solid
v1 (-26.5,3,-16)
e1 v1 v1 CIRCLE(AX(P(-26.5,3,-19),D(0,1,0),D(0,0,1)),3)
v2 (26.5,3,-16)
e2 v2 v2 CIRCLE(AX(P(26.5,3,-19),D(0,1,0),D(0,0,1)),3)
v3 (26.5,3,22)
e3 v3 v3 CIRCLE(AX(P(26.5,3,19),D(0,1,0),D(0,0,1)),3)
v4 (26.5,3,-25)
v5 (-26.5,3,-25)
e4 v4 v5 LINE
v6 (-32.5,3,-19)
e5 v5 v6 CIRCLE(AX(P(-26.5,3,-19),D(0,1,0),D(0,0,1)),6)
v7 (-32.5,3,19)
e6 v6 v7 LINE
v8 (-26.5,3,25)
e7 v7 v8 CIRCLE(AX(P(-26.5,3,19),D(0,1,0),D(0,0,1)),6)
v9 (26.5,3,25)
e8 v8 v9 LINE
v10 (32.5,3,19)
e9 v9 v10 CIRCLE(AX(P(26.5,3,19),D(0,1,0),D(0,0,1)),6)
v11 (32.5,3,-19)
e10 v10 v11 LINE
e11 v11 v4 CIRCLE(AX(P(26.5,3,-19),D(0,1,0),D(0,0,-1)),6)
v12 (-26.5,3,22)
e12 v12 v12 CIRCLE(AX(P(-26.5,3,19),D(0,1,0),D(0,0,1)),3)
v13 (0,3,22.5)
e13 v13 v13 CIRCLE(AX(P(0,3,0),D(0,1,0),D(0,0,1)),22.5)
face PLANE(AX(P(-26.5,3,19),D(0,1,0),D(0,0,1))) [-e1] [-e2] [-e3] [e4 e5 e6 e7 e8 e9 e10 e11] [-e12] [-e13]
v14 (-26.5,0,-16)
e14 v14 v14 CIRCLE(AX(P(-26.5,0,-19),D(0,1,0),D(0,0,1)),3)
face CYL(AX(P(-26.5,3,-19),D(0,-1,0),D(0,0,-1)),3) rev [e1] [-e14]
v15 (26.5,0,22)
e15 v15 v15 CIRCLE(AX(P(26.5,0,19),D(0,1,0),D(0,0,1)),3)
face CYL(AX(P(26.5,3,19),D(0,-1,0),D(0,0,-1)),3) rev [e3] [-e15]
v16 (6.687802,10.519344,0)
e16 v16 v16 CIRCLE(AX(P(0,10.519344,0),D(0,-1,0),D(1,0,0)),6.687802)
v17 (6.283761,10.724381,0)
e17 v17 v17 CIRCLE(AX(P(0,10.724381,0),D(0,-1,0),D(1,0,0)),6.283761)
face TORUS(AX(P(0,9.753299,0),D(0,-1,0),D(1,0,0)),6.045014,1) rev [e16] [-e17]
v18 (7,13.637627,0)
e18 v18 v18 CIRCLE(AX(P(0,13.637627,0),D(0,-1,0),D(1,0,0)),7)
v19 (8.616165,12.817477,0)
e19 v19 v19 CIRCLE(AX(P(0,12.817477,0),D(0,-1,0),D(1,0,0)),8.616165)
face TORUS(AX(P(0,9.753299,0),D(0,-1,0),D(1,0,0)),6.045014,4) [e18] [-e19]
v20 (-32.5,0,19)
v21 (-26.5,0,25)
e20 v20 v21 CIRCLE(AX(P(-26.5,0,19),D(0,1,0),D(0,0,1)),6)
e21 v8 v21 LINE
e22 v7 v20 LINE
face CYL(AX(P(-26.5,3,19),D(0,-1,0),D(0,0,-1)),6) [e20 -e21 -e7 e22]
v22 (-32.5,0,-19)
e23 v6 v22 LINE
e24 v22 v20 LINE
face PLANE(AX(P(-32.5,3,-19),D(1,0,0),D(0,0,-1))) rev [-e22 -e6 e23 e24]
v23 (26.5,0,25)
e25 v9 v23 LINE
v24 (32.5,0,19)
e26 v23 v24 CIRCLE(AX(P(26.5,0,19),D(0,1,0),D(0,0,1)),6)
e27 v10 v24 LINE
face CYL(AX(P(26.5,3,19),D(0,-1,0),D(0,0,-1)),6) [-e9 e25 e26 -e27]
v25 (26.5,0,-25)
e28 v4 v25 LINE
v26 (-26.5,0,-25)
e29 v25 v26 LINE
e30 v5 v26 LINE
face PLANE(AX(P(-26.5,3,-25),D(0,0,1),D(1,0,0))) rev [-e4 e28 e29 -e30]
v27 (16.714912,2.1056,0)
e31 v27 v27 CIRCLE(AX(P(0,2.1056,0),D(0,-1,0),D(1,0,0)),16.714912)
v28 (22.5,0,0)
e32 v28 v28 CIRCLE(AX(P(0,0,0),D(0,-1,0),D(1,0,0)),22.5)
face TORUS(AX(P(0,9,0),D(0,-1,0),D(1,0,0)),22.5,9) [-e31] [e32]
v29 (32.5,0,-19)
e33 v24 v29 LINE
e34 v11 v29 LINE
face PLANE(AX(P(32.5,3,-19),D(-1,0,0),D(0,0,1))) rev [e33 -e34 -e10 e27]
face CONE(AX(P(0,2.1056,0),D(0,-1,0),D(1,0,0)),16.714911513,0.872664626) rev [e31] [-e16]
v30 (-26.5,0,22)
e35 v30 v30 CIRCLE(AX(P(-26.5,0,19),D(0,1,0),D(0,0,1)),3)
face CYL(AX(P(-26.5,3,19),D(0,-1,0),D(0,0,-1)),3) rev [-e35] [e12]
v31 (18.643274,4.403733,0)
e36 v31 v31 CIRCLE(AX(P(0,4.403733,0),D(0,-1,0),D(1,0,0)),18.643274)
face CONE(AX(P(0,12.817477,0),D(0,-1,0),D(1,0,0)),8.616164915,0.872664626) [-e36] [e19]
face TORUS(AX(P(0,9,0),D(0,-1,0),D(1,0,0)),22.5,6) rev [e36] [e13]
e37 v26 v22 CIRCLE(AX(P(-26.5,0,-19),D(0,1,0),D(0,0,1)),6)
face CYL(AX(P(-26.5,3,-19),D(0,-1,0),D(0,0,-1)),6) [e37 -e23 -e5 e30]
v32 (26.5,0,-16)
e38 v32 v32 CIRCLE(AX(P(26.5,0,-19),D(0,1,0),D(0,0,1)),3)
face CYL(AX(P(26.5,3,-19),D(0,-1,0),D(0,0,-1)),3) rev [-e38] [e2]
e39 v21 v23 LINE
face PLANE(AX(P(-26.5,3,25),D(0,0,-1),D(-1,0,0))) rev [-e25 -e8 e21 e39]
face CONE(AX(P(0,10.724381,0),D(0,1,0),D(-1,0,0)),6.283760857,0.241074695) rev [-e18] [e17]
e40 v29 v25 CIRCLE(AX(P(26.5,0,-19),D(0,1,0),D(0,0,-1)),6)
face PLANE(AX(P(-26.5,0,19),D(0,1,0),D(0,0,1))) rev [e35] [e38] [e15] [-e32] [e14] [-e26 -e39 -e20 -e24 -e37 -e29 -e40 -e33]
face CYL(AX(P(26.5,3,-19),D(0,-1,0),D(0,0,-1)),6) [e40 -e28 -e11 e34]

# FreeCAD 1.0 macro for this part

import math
import FreeCAD as App
import Part
import Sketcher

V = App.Vector
Q = App.Units.Quantity

doc = App.newDocument("Part")
body = doc.addObject("PartDesign::Body", "Body")

sketch1 = doc.addObject("Sketcher::SketchObject", "Sketch")
body.addObject(sketch1)
sketch1.AttachmentSupport = (doc.XZ_Plane, [""])
sketch1.MapMode = "FlatFace"
sketch1.addGeometry(Part.LineSegment(V(26.5, -25, 0), V(-26.5, -25, 0)), False)
sketch1.addGeometry(Part.ArcOfCircle(Part.Circle(V(-26.5, -19, 0), V(0, 0, 1), 6), math.radians(180), math.radians(270)), False)
sketch1.addGeometry(Part.LineSegment(V(-32.5, -19, 0), V(-32.5, 19, 0)), False)
sketch1.addGeometry(Part.ArcOfCircle(Part.Circle(V(-26.5, 19, 0), V(0, 0, 1), 6), math.radians(90), math.radians(180)), False)
sketch1.addGeometry(Part.LineSegment(V(-26.5, 25, 0), V(26.5, 25, 0)), False)
sketch1.addGeometry(Part.ArcOfCircle(Part.Circle(V(26.5, 19, 0), V(0, 0, 1), 6), math.radians(0), math.radians(90)), False)
sketch1.addGeometry(Part.LineSegment(V(32.5, 19, 0), V(32.5, -19, 0)), False)
sketch1.addGeometry(Part.ArcOfCircle(Part.Circle(V(26.5, -19, 0), V(0, 0, 1), 6), math.radians(-90), math.radians(0)), False)
sketch1.addGeometry(Part.Circle(V(26.5, 19, 0), V(0, 0, 1), 3), False)
sketch1.addGeometry(Part.Circle(V(-26.5, 19, 0), V(0, 0, 1), 3), False)
sketch1.addGeometry(Part.Circle(V(26.5, -19, 0), V(0, 0, 1), 3), False)
sketch1.addGeometry(Part.Circle(V(0, 0, 0), V(0, 0, 1), 22.5), False)
sketch1.addGeometry(Part.Circle(V(-26.5, -19, 0), V(0, 0, 1), 3), False)
sketch1.addConstraint(Sketcher.Constraint("Tangent", 0, 2, 1, 2))
sketch1.addConstraint(Sketcher.Constraint("Tangent", 1, 1, 2, 1))
sketch1.addConstraint(Sketcher.Constraint("Tangent", 2, 2, 3, 2))
sketch1.addConstraint(Sketcher.Constraint("Tangent", 3, 1, 4, 1))
sketch1.addConstraint(Sketcher.Constraint("Tangent", 4, 2, 5, 2))
sketch1.addConstraint(Sketcher.Constraint("Tangent", 5, 1, 6, 1))
sketch1.addConstraint(Sketcher.Constraint("Tangent", 6, 2, 7, 2))
sketch1.addConstraint(Sketcher.Constraint("Tangent", 7, 1, 0, 1))
sketch1.addConstraint(Sketcher.Constraint("Horizontal", 0))
sketch1.addConstraint(Sketcher.Constraint("Vertical", 2))
sketch1.addConstraint(Sketcher.Constraint("Horizontal", 4))
sketch1.addConstraint(Sketcher.Constraint("Vertical", 6))
sketch1.addConstraint(Sketcher.Constraint("Coincident", 11, 3, -1, 1))
sketch1.addConstraint(Sketcher.Constraint("Coincident", 8, 3, 5, 3))
sketch1.addConstraint(Sketcher.Constraint("Coincident", 9, 3, 3, 3))
sketch1.addConstraint(Sketcher.Constraint("Coincident", 10, 3, 7, 3))
sketch1.addConstraint(Sketcher.Constraint("Coincident", 12, 3, 1, 3))
sketch1.addConstraint(Sketcher.Constraint("Equal", 1, 3))
sketch1.addConstraint(Sketcher.Constraint("Equal", 3, 5))
sketch1.addConstraint(Sketcher.Constraint("Equal", 5, 7))
sketch1.addConstraint(Sketcher.Constraint("Equal", 8, 9))
sketch1.addConstraint(Sketcher.Constraint("Equal", 9, 10))
sketch1.addConstraint(Sketcher.Constraint("Equal", 10, 12))
sketch1.addConstraint(Sketcher.Constraint("Symmetric", 1, 3, 5, 3, -1, 1))
sketch1.addConstraint(Sketcher.Constraint("Diameter", 8, Q("6 mm")))
sketch1.addConstraint(Sketcher.Constraint("Diameter", 11, Q("45 mm")))
sketch1.addConstraint(Sketcher.Constraint("Radius", 1, Q("6 mm")))
sketch1.addConstraint(Sketcher.Constraint("DistanceX", 0, 2, 0, 1, Q("53 mm")))
sketch1.addConstraint(Sketcher.Constraint("DistanceY", 2, 1, 2, 2, Q("38 mm")))
pad1 = doc.addObject("PartDesign::Pad", "Pad")
body.addObject(pad1)
pad1.Profile = sketch1
pad1.Length = 3
pad1.Reversed = True

sketch2 = doc.addObject("Sketcher::SketchObject", "Sketch001")
body.addObject(sketch2)
sketch2.AttachmentSupport = (doc.XY_Plane, [""])
sketch2.MapMode = "FlatFace"
sketch2.addGeometry(Part.LineSegment(V(-8.616165, 12.817477, 0), V(-18.643274, 4.403733, 0)), False)
sketch2.addGeometry(Part.ArcOfCircle(Part.Circle(V(-22.5, 9, 0), V(0, 0, 1), 6), math.radians(-90), math.radians(-50)), False)
sketch2.addGeometry(Part.LineSegment(V(-22.5, 3, 0), V(-22.5, 0, 0)), False)
sketch2.addGeometry(Part.ArcOfCircle(Part.Circle(V(-22.5, 9, 0), V(0, 0, 1), 9), math.radians(-90), math.radians(-50)), False)
sketch2.addGeometry(Part.LineSegment(V(-16.714912, 2.1056, 0), V(-6.687802, 10.519344, 0)), False)
sketch2.addGeometry(Part.ArcOfCircle(Part.Circle(V(-6.045014, 9.753299, 0), V(0, 0, 1), 1), math.radians(103.812563), math.radians(130)), False)
sketch2.addGeometry(Part.LineSegment(V(-6.283761, 10.724381, 0), V(-7, 13.637627, 0)), False)
sketch2.addGeometry(Part.ArcOfCircle(Part.Circle(V(-6.045014, 9.753299, 0), V(0, 0, 1), 4), math.radians(103.812563), math.radians(130)), False)
sketch2.addConstraint(Sketcher.Constraint("Tangent", 0, 2, 1, 2))
sketch2.addConstraint(Sketcher.Constraint("Coincident", 1, 1, 2, 1))
sketch2.addConstraint(Sketcher.Constraint("Coincident", 2, 2, 3, 1))
sketch2.addConstraint(Sketcher.Constraint("Tangent", 3, 2, 4, 1))
sketch2.addConstraint(Sketcher.Constraint("Tangent", 4, 2, 5, 2))
sketch2.addConstraint(Sketcher.Constraint("Coincident", 5, 1, 6, 1))
sketch2.addConstraint(Sketcher.Constraint("Coincident", 6, 2, 7, 1))
sketch2.addConstraint(Sketcher.Constraint("Tangent", 7, 2, 0, 1))
sketch2.addConstraint(Sketcher.Constraint("Vertical", 2))
sketch2.addConstraint(Sketcher.Constraint("Coincident", 3, 3, 1, 3))
sketch2.addConstraint(Sketcher.Constraint("Coincident", 7, 3, 5, 3))
sketch2.addConstraint(Sketcher.Constraint("PointOnObject", 2, 2, -1))
sketch2.addConstraint(Sketcher.Constraint("Parallel", 0, 4))
sketch2.addConstraint(Sketcher.Constraint("Vertical", 3, 3, 1, 1))
sketch2.addConstraint(Sketcher.Constraint("Radius", 1, Q("6 mm")))
sketch2.addConstraint(Sketcher.Constraint("Radius", 3, Q("9 mm")))
sketch2.addConstraint(Sketcher.Constraint("Radius", 5, Q("1 mm")))
sketch2.addConstraint(Sketcher.Constraint("Angle", 0, Q("-140 deg")))
sketch2.addConstraint(Sketcher.Constraint("DistanceX", 6, 2, -1, 1, Q("7 mm")))
sketch2.addConstraint(Sketcher.Constraint("DistanceX", 1, 3, -1, 1, Q("22.5 mm")))
sketch2.addConstraint(Sketcher.Constraint("DistanceY", -1, 1, 5, 3, Q("9.753299 mm")))
sketch2.addConstraint(Sketcher.Constraint("DistanceX", 5, 1, -1, 1, Q("6.283761 mm")))
revolution = doc.addObject("PartDesign::Revolution", "Revolution")
body.addObject(revolution)
revolution.Profile = sketch2
revolution.ReferenceAxis = (sketch2, ["V_Axis"])
revolution.Angle = 360

doc.recompute()
